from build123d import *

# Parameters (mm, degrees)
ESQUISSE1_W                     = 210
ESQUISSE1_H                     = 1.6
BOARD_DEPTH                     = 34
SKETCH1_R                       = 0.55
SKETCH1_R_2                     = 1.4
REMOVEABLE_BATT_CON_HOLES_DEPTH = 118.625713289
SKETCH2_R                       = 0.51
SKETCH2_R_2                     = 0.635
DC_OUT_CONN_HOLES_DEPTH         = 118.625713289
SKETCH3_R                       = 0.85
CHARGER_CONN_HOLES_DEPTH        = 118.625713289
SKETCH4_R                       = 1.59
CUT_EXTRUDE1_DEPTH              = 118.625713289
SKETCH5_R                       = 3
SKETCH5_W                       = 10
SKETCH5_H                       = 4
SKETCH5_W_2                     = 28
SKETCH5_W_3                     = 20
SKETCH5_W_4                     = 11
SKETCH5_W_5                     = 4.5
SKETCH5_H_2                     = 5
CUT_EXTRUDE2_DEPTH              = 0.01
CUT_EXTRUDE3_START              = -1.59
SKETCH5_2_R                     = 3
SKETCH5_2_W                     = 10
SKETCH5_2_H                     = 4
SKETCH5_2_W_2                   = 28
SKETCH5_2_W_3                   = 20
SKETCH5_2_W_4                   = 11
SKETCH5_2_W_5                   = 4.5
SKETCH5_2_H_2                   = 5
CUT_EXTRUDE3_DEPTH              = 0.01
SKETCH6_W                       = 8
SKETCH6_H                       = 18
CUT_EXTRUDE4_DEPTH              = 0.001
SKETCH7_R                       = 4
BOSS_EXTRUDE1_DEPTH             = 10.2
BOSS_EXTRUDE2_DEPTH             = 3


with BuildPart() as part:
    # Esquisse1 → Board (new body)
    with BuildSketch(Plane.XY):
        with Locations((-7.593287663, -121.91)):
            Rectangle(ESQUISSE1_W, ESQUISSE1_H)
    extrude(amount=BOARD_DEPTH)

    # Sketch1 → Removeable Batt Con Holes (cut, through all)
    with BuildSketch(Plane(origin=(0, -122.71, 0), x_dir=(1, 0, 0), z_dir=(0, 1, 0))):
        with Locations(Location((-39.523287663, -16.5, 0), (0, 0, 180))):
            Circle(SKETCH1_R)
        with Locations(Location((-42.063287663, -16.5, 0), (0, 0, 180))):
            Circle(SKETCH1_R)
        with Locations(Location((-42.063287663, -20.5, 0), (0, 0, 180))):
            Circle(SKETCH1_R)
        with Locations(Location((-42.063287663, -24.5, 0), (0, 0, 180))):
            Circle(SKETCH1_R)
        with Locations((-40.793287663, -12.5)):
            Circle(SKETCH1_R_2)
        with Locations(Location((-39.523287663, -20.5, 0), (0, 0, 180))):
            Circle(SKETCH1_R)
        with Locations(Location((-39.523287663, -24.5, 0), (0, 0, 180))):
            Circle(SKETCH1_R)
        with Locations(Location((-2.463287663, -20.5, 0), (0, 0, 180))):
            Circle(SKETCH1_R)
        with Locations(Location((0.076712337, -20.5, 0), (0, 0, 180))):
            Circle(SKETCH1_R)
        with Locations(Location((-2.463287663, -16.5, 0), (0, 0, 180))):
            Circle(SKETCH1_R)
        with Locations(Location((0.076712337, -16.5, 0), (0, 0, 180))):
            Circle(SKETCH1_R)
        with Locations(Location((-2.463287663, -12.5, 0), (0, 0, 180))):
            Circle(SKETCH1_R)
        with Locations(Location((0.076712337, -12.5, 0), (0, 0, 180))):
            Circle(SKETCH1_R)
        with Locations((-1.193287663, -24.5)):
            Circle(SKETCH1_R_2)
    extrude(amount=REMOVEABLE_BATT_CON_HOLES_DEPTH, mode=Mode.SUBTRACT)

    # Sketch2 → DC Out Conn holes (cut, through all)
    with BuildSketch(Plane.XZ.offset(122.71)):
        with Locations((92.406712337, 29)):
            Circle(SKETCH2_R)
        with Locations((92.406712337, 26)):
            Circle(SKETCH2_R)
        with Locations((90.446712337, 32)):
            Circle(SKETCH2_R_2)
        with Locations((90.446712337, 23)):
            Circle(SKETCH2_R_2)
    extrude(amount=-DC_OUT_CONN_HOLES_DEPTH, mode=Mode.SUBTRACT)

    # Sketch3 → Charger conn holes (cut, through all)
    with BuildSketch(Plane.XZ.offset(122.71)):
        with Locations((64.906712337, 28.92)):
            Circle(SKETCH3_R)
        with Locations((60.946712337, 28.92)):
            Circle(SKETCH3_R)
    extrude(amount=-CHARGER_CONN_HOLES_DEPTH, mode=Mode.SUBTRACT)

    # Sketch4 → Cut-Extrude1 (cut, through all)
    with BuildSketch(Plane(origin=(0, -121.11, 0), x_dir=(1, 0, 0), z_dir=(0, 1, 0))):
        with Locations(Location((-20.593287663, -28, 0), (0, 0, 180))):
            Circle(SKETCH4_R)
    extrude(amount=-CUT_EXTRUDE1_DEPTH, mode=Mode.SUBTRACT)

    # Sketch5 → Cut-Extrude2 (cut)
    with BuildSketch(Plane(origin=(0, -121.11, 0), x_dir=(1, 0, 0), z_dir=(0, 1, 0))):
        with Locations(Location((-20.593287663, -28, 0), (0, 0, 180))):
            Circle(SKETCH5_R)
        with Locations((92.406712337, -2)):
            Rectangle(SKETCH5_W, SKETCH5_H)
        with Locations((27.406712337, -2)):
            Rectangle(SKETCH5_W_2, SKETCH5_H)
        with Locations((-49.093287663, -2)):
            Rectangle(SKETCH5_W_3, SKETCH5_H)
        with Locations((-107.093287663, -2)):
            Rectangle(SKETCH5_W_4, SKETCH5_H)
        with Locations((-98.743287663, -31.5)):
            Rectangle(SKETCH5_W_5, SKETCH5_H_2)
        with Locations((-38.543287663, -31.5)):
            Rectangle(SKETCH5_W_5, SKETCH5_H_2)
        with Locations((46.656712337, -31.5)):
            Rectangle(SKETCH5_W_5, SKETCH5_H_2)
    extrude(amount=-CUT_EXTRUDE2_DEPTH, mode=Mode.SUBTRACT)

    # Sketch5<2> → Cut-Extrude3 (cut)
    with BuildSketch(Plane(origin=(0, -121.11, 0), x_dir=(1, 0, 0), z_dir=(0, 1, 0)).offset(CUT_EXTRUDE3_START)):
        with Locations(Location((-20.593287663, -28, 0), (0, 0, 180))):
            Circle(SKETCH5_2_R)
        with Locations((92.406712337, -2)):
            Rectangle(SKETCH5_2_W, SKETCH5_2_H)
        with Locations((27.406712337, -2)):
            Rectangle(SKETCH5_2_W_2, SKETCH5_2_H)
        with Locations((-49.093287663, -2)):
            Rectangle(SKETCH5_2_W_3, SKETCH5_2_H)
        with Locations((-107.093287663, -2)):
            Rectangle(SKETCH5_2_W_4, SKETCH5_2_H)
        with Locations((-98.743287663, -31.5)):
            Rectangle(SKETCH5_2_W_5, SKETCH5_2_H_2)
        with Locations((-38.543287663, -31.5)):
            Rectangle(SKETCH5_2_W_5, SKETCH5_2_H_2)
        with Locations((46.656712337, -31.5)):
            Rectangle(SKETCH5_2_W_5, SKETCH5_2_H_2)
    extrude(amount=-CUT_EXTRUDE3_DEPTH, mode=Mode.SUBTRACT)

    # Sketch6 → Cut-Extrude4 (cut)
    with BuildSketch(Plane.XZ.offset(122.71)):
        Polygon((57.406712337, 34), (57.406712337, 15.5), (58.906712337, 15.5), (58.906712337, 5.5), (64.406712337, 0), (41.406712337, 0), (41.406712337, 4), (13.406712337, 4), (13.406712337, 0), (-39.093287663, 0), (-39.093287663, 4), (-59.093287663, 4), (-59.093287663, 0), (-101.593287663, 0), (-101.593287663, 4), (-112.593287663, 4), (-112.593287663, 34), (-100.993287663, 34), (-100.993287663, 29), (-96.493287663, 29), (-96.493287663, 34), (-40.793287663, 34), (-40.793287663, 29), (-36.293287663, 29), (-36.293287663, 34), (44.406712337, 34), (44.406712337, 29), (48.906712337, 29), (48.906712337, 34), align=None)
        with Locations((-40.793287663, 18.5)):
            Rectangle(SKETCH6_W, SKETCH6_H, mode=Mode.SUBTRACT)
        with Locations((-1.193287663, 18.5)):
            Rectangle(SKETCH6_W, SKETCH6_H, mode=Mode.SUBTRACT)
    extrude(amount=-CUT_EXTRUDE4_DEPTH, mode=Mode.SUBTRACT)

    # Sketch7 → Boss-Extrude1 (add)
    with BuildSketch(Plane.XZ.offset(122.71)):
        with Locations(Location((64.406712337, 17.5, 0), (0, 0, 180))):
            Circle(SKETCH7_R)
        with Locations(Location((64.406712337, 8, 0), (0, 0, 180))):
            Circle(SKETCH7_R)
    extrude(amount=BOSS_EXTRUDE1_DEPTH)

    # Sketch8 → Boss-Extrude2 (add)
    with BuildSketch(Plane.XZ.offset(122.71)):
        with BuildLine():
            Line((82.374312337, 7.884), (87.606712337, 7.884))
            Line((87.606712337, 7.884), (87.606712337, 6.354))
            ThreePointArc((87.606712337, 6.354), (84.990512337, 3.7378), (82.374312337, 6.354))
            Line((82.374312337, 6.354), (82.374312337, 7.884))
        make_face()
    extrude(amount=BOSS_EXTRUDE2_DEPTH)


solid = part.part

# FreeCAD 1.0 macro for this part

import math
import FreeCAD as App
import Part
import Sketcher

V = App.Vector
Q = App.Units.Quantity

doc = App.newDocument("Part")
body = doc.addObject("PartDesign::Body", "Body")

# Sketch on XY plane
sketch1 = doc.addObject("Sketcher::SketchObject", "Sketch")
body.addObject(sketch1)
sketch1.AttachmentSupport = (doc.XY_Plane, [""])
sketch1.MapMode = "FlatFace"
sketch1.addGeometry([
    Part.LineSegment(V(-112.6, -121.1, 0), V(-112.6, -122.7, 0)),
    Part.LineSegment(V(-112.6, -122.7, 0), V(97.4, -122.7, 0)),
    Part.LineSegment(V(97.4, -122.7, 0), V(97.4, -121.1, 0)),
    Part.LineSegment(V(97.4, -121.1, 0), V(-112.6, -121.1, 0)),
], False)
sketch1.addConstraint([
    Sketcher.Constraint("Coincident", 0, 2, 1, 1),
    Sketcher.Constraint("Coincident", 1, 2, 2, 1),
    Sketcher.Constraint("Coincident", 2, 2, 3, 1),
    Sketcher.Constraint("Coincident", 3, 2, 0, 1),
    Sketcher.Constraint("Vertical", 0),
    Sketcher.Constraint("Horizontal", 1),
    Sketcher.Constraint("Vertical", 2),
    Sketcher.Constraint("Horizontal", 3),
    Sketcher.Constraint("DistanceX", 1, 1, 1, 2, 210.0),
    Sketcher.Constraint("DistanceY", 0, 2, 0, 1, 1.6),
    Sketcher.Constraint("DistanceY", 0, 2, -1, 1, 122.71),
    Sketcher.Constraint("DistanceX", 0, 2, -1, 1, 112.593288),
])
pad1 = doc.addObject("PartDesign::Pad", "Pad")
body.addObject(pad1)
pad1.Profile = sketch1
pad1.Length = 34

# Sketch on XZ plane
sketch2 = doc.addObject("Sketcher::SketchObject", "Sketch001")
body.addObject(sketch2)
sketch2.AttachmentSupport = (doc.XZ_Plane, [""])
sketch2.MapMode = "FlatFace"
sketch2.AttachmentOffset = App.Placement(V(0, 0, 122.71), App.Rotation())
sketch2.addGeometry([
    Part.Circle(V(-39.5, 16.5, 0), V(0, 0, 1), 0.6),  # 0
    Part.Circle(V(-42.1, 16.5, 0), V(0, 0, 1), 0.6),  # 1
    Part.Circle(V(-42.1, 20.5, 0), V(0, 0, 1), 0.6),  # 2
    Part.Circle(V(-42.1, 24.5, 0), V(0, 0, 1), 0.6),  # 3
    Part.Circle(V(-40.8, 12.5, 0), V(0, 0, 1), 1.4),  # 4
    Part.Circle(V(-39.5, 20.5, 0), V(0, 0, 1), 0.6),  # 5
    Part.Circle(V(-39.5, 24.5, 0), V(0, 0, 1), 0.6),  # 6
    Part.Circle(V(-2.5, 20.5, 0), V(0, 0, 1), 0.6),  # 7
    Part.Circle(V(0.1, 20.5, 0), V(0, 0, 1), 0.6),  # 8
    Part.Circle(V(-2.5, 16.5, 0), V(0, 0, 1), 0.6),  # 9
    Part.Circle(V(0.1, 16.5, 0), V(0, 0, 1), 0.6),  # 10
    Part.Circle(V(-2.5, 12.5, 0), V(0, 0, 1), 0.6),  # 11
    Part.Circle(V(0.1, 12.5, 0), V(0, 0, 1), 0.6),  # 12
    Part.Circle(V(-1.2, 24.5, 0), V(0, 0, 1), 1.4),  # 13
], False)
sketch2.addConstraint([
    Sketcher.Constraint("Equal", 0, 1),
    Sketcher.Constraint("Equal", 1, 2),
    Sketcher.Constraint("Equal", 2, 3),
    Sketcher.Constraint("Equal", 3, 5),
    Sketcher.Constraint("Equal", 5, 6),
    Sketcher.Constraint("Equal", 6, 7),
    Sketcher.Constraint("Equal", 7, 8),
    Sketcher.Constraint("Equal", 8, 9),
    Sketcher.Constraint("Equal", 9, 10),
    Sketcher.Constraint("Equal", 10, 11),
    Sketcher.Constraint("Equal", 11, 12),
    Sketcher.Constraint("Equal", 4, 13),
    Sketcher.Constraint("Horizontal", 0, 3, 1, 3),
    Sketcher.Constraint("Horizontal", 2, 3, 5, 3),
    Sketcher.Constraint("Horizontal", 3, 3, 6, 3),
    Sketcher.Constraint("Horizontal", 5, 3, 7, 3),
    Sketcher.Constraint("Horizontal", 7, 3, 8, 3),
    Sketcher.Constraint("Horizontal", 1, 3, 9, 3),
    Sketcher.Constraint("Horizontal", 9, 3, 10, 3),
    Sketcher.Constraint("Horizontal", 4, 3, 11, 3),
    Sketcher.Constraint("Horizontal", 11, 3, 12, 3),
    Sketcher.Constraint("Horizontal", 6, 3, 13, 3),
    Sketcher.Constraint("Vertical", 1, 3, 2, 3),
    Sketcher.Constraint("Vertical", 2, 3, 3, 3),
    Sketcher.Constraint("Vertical", 0, 3, 5, 3),
    Sketcher.Constraint("Vertical", 5, 3, 6, 3),
    Sketcher.Constraint("Vertical", 7, 3, 9, 3),
    Sketcher.Constraint("Vertical", 8, 3, 10, 3),
    Sketcher.Constraint("Vertical", 9, 3, 11, 3),
    Sketcher.Constraint("Vertical", 10, 3, 12, 3),
    Sketcher.Constraint("Diameter", 0, 1.1),
    Sketcher.Constraint("Diameter", 4, 2.8),
    Sketcher.Constraint("DistanceY", 1, 3, 2, 3, 4.0),
    Sketcher.Constraint("DistanceY", 2, 3, 3, 3, 4.0),
    Sketcher.Constraint("DistanceY", 4, 3, 1, 3, 4.0),
    Sketcher.Constraint("DistanceY", -1, 1, 0, 3, 16.5),
    Sketcher.Constraint("DistanceX", 2, 3, 7, 3, 39.6),
    Sketcher.Constraint("DistanceX", 5, 3, 8, 3, 39.6),
    Sketcher.Constraint("DistanceX", 1, 3, 0, 3, 2.54),
    Sketcher.Constraint("DistanceX", 1, 3, 4, 3, 1.27),
    Sketcher.Constraint("DistanceX", 7, 3, 13, 3, 1.27),
    Sketcher.Constraint("DistanceX", 0, 3, -1, 1, 39.523288),
])
pocket1 = doc.addObject("PartDesign::Pocket", "Pocket")
body.addObject(pocket1)
pocket1.Profile = sketch2
pocket1.Type = "ThroughAll"

# Sketch on XZ plane
sketch3 = doc.addObject("Sketcher::SketchObject", "Sketch002")
body.addObject(sketch3)
sketch3.AttachmentSupport = (doc.XZ_Plane, [""])
sketch3.MapMode = "FlatFace"
sketch3.AttachmentOffset = App.Placement(V(0, 0, 122.71), App.Rotation())
sketch3.addGeometry([
    Part.Circle(V(92.4, 29, 0), V(0, 0, 1), 0.5),
    Part.Circle(V(92.4, 26, 0), V(0, 0, 1), 0.5),
    Part.Circle(V(90.4, 32, 0), V(0, 0, 1), 0.6),
    Part.Circle(V(90.4, 23, 0), V(0, 0, 1), 0.6),
], False)
sketch3.addConstraint([
    Sketcher.Constraint("Equal", 0, 1),
    Sketcher.Constraint("Equal", 2, 3),
    Sketcher.Constraint("Vertical", 0, 3, 1, 3),
    Sketcher.Constraint("Vertical", 2, 3, 3, 3),
    Sketcher.Constraint("Diameter", 0, 1.02),
    Sketcher.Constraint("Diameter", 2, 1.27),
    Sketcher.Constraint("DistanceY", -1, 1, 0, 3, 29.0),
    Sketcher.Constraint("DistanceY", -1, 1, 1, 3, 26.0),
    Sketcher.Constraint("DistanceY", -1, 1, 2, 3, 32.0),
    Sketcher.Constraint("DistanceY", -1, 1, 3, 3, 23.0),
    Sketcher.Constraint("DistanceX", 2, 3, 0, 3, 1.96),
    Sketcher.Constraint("DistanceX", -1, 1, 0, 3, 92.406712),
])
pocket2 = doc.addObject("PartDesign::Pocket", "Pocket001")
body.addObject(pocket2)
pocket2.Profile = sketch3
pocket2.Type = "ThroughAll"

# Sketch on XZ plane
sketch4 = doc.addObject("Sketcher::SketchObject", "Sketch003")
body.addObject(sketch4)
sketch4.AttachmentSupport = (doc.XZ_Plane, [""])
sketch4.MapMode = "FlatFace"
sketch4.AttachmentOffset = App.Placement(V(0, 0, 122.71), App.Rotation())
sketch4.addGeometry([
    Part.Circle(V(64.9, 28.9, 0), V(0, 0, 1), 0.8),
    Part.Circle(V(60.9, 28.9, 0), V(0, 0, 1), 0.8),
], False)
sketch4.addConstraint([
    Sketcher.Constraint("Equal", 0, 1),
    Sketcher.Constraint("Horizontal", 0, 3, 1, 3),
    Sketcher.Constraint("Diameter", 0, 1.7),
    Sketcher.Constraint("DistanceY", -1, 1, 0, 3, 28.92),
    Sketcher.Constraint("DistanceX", 1, 3, 0, 3, 3.96),
    Sketcher.Constraint("DistanceX", -1, 1, 0, 3, 64.906712),
])
pocket3 = doc.addObject("PartDesign::Pocket", "Pocket002")
body.addObject(pocket3)
pocket3.Profile = sketch4
pocket3.Type = "ThroughAll"

# Sketch on XZ plane
sketch5 = doc.addObject("Sketcher::SketchObject", "Sketch004")
body.addObject(sketch5)
sketch5.AttachmentSupport = (doc.XZ_Plane, [""])
sketch5.MapMode = "FlatFace"
sketch5.AttachmentOffset = App.Placement(V(0, 0, 121.11), App.Rotation())
sketch5.addGeometry(Part.Circle(V(-20.6, 28, 0), V(0, 0, 1), 1.6), False)
sketch5.addConstraint([
    Sketcher.Constraint("Diameter", 0, 3.18),
    Sketcher.Constraint("DistanceY", -1, 1, 0, 3, 28.0),
    Sketcher.Constraint("DistanceX", 0, 3, -1, 1, 20.593288),
])
pocket4 = doc.addObject("PartDesign::Pocket", "Pocket003")
body.addObject(pocket4)
pocket4.Profile = sketch5
pocket4.Type = "ThroughAll"
pocket4.Reversed = True

# Sketch on XZ plane
sketch6 = doc.addObject("Sketcher::SketchObject", "Sketch005")
body.addObject(sketch6)
sketch6.AttachmentSupport = (doc.XZ_Plane, [""])
sketch6.MapMode = "FlatFace"
sketch6.AttachmentOffset = App.Placement(V(0, 0, 121.11), App.Rotation())
sketch6.addGeometry([
    Part.Circle(V(-20.6, 28, 0), V(0, 0, 1), 3),  # 0
    Part.LineSegment(V(87.4, 0, 0), V(87.4, 4, 0)),  # 1
    Part.LineSegment(V(87.4, 4, 0), V(97.4, 4, 0)),  # 2
    Part.LineSegment(V(97.4, 4, 0), V(97.4, 0, 0)),  # 3
    Part.LineSegment(V(97.4, 0, 0), V(87.4, 0, 0)),  # 4
    Part.LineSegment(V(13.4, 0, 0), V(13.4, 4, 0)),  # 5
    Part.LineSegment(V(13.4, 4, 0), V(41.4, 4, 0)),  # 6
    Part.LineSegment(V(41.4, 4, 0), V(41.4, 0, 0)),  # 7
    Part.LineSegment(V(41.4, 0, 0), V(13.4, 0, 0)),  # 8
    Part.LineSegment(V(-59.1, 0, 0), V(-59.1, 4, 0)),  # 9
    Part.LineSegment(V(-59.1, 4, 0), V(-39.1, 4, 0)),  # 10
    Part.LineSegment(V(-39.1, 4, 0), V(-39.1, 0, 0)),  # 11
    Part.LineSegment(V(-39.1, 0, 0), V(-59.1, 0, 0)),  # 12
    Part.LineSegment(V(-112.6, 0, 0), V(-112.6, 4, 0)),  # 13
    Part.LineSegment(V(-112.6, 4, 0), V(-101.6, 4, 0)),  # 14
    Part.LineSegment(V(-101.6, 4, 0), V(-101.6, 0, 0)),  # 15
    Part.LineSegment(V(-101.6, 0, 0), V(-112.6, 0, 0)),  # 16
    Part.LineSegment(V(-101, 29, 0), V(-101, 34, 0)),  # 17
    Part.LineSegment(V(-101, 34, 0), V(-96.5, 34, 0)),  # 18
    Part.LineSegment(V(-96.5, 34, 0), V(-96.5, 29, 0)),  # 19
    Part.LineSegment(V(-96.5, 29, 0), V(-101, 29, 0)),  # 20
    Part.LineSegment(V(-40.8, 29, 0), V(-40.8, 34, 0)),  # 21
    Part.LineSegment(V(-40.8, 34, 0), V(-36.3, 34, 0)),  # 22
    Part.LineSegment(V(-36.3, 34, 0), V(-36.3, 29, 0)),  # 23
    Part.LineSegment(V(-36.3, 29, 0), V(-40.8, 29, 0)),  # 24
    Part.LineSegment(V(44.4, 29, 0), V(44.4, 34, 0)),  # 25
    Part.LineSegment(V(44.4, 34, 0), V(48.9, 34, 0)),  # 26
    Part.LineSegment(V(48.9, 34, 0), V(48.9, 29, 0)),  # 27
    Part.LineSegment(V(48.9, 29, 0), V(44.4, 29, 0)),  # 28
], False)
sketch6.addConstraint([
    Sketcher.Constraint("Coincident", 1, 2, 2, 1),
    Sketcher.Constraint("Coincident", 2, 2, 3, 1),
    Sketcher.Constraint("Coincident", 3, 2, 4, 1),
    Sketcher.Constraint("Coincident", 4, 2, 1, 1),
    Sketcher.Constraint("Coincident", 5, 2, 6, 1),
    Sketcher.Constraint("Coincident", 6, 2, 7, 1),
    Sketcher.Constraint("Coincident", 7, 2, 8, 1),
    Sketcher.Constraint("Coincident", 8, 2, 5, 1),
    Sketcher.Constraint("Coincident", 9, 2, 10, 1),
    Sketcher.Constraint("Coincident", 10, 2, 11, 1),
    Sketcher.Constraint("Coincident", 11, 2, 12, 1),
    Sketcher.Constraint("Coincident", 12, 2, 9, 1),
    Sketcher.Constraint("Coincident", 13, 2, 14, 1),
    Sketcher.Constraint("Coincident", 14, 2, 15, 1),
    Sketcher.Constraint("Coincident", 15, 2, 16, 1),
    Sketcher.Constraint("Coincident", 16, 2, 13, 1),
    Sketcher.Constraint("Coincident", 17, 2, 18, 1),
    Sketcher.Constraint("Coincident", 18, 2, 19, 1),
    Sketcher.Constraint("Coincident", 19, 2, 20, 1),
    Sketcher.Constraint("Coincident", 20, 2, 17, 1),
    Sketcher.Constraint("Coincident", 21, 2, 22, 1),
    Sketcher.Constraint("Coincident", 22, 2, 23, 1),
    Sketcher.Constraint("Coincident", 23, 2, 24, 1),
    Sketcher.Constraint("Coincident", 24, 2, 21, 1),
    Sketcher.Constraint("Coincident", 25, 2, 26, 1),
    Sketcher.Constraint("Coincident", 26, 2, 27, 1),
    Sketcher.Constraint("Coincident", 27, 2, 28, 1),
    Sketcher.Constraint("Coincident", 28, 2, 25, 1),
    Sketcher.Constraint("Vertical", 1),
    Sketcher.Constraint("Horizontal", 2),
    Sketcher.Constraint("Vertical", 3),
    Sketcher.Constraint("Horizontal", 4),
    Sketcher.Constraint("Vertical", 5),
    Sketcher.Constraint("Horizontal", 6),
    Sketcher.Constraint("Vertical", 7),
    Sketcher.Constraint("Horizontal", 8),
    Sketcher.Constraint("Vertical", 9),
    Sketcher.Constraint("Horizontal", 10),
    Sketcher.Constraint("Vertical", 11),
    Sketcher.Constraint("Horizontal", 12),
    Sketcher.Constraint("Vertical", 13),
    Sketcher.Constraint("Horizontal", 14),
    Sketcher.Constraint("Vertical", 15),
    Sketcher.Constraint("Horizontal", 16),
    Sketcher.Constraint("Vertical", 17),
    Sketcher.Constraint("Horizontal", 18),
    Sketcher.Constraint("Vertical", 19),
    Sketcher.Constraint("Horizontal", 20),
    Sketcher.Constraint("Vertical", 21),
    Sketcher.Constraint("Horizontal", 22),
    Sketcher.Constraint("Vertical", 23),
    Sketcher.Constraint("Horizontal", 24),
    Sketcher.Constraint("Vertical", 25),
    Sketcher.Constraint("Horizontal", 26),
    Sketcher.Constraint("Vertical", 27),
    Sketcher.Constraint("Horizontal", 28),
    Sketcher.Constraint("PointOnObject", 3, 2, -1),
    Sketcher.Constraint("PointOnObject", 7, 2, -1),
    Sketcher.Constraint("PointOnObject", 11, 2, -1),
    Sketcher.Constraint("PointOnObject", 15, 2, -1),
    Sketcher.Constraint("Horizontal", 2, 2, 5, 2),
    Sketcher.Constraint("Horizontal", 6, 2, 9, 2),
    Sketcher.Constraint("Horizontal", 10, 2, 13, 2),
    Sketcher.Constraint("Horizontal", 18, 2, 21, 2),
    Sketcher.Constraint("Horizontal", 20, 2, 23, 2),
    Sketcher.Constraint("Horizontal", 22, 2, 25, 2),
    Sketcher.Constraint("Horizontal", 24, 2, 27, 2),
    Sketcher.Constraint("Equal", 20, 22),
    Sketcher.Constraint("Equal", 24, 26),
    Sketcher.Constraint("Diameter", 0, 6.0),
    Sketcher.Constraint("DistanceX", 2, 1, 2, 2, 10.0),
    Sketcher.Constraint("DistanceX", 6, 1, 6, 2, 28.0),
    Sketcher.Constraint("DistanceX", 10, 1, 10, 2, 20.0),
    Sketcher.Constraint("DistanceX", 14, 1, 14, 2, 11.0),
    Sketcher.Constraint("DistanceY", 1, 1, 1, 2, 4.0),
    Sketcher.Constraint("DistanceY", 17, 1, 17, 2, 5.0),
    Sketcher.Constraint("DistanceX", 18, 1, 18, 2, 4.5),
    Sketcher.Constraint("DistanceY", -1, 1, 0, 3, 28.0),
    Sketcher.Constraint("DistanceY", -1, 1, 17, 2, 34.0),
    Sketcher.Constraint("DistanceX", 0, 3, 1, 2, 108.0),
    Sketcher.Constraint("DistanceX", 0, 3, 5, 2, 34.0),
    Sketcher.Constraint("DistanceX", 13, 2, 0, 3, 92.0),
    Sketcher.Constraint("DistanceX", 6, 2, 25, 2, 3.0),
    Sketcher.Constraint("DistanceX", 9, 2, 0, 3, 38.5),
    Sketcher.Constraint("DistanceX", 14, 2, 17, 2, 0.6),
    Sketcher.Constraint("DistanceX", 21, 2, 0, 3, 20.2),
    Sketcher.Constraint("DistanceX", 0, 3, -1, 1, 20.593288),
])
pocket5 = doc.addObject("PartDesign::Pocket", "Pocket004")
body.addObject(pocket5)
pocket5.Profile = sketch6
pocket5.Length = 0.01
pocket5.Reversed = True

# Sketch on XZ plane
sketch7 = doc.addObject("Sketcher::SketchObject", "Sketch006")
body.addObject(sketch7)
sketch7.AttachmentSupport = (doc.XZ_Plane, [""])
sketch7.MapMode = "FlatFace"
sketch7.AttachmentOffset = App.Placement(V(0, 0, 122.7), App.Rotation())
sketch7.addGeometry([
    Part.Circle(V(-20.6, 28, 0), V(0, 0, 1), 3),  # 0
    Part.LineSegment(V(87.4, 0, 0), V(87.4, 4, 0)),  # 1
    Part.LineSegment(V(87.4, 4, 0), V(97.4, 4, 0)),  # 2
    Part.LineSegment(V(97.4, 4, 0), V(97.4, 0, 0)),  # 3
    Part.LineSegment(V(97.4, 0, 0), V(87.4, 0, 0)),  # 4
    Part.LineSegment(V(13.4, 0, 0), V(13.4, 4, 0)),  # 5
    Part.LineSegment(V(13.4, 4, 0), V(41.4, 4, 0)),  # 6
    Part.LineSegment(V(41.4, 4, 0), V(41.4, 0, 0)),  # 7
    Part.LineSegment(V(41.4, 0, 0), V(13.4, 0, 0)),  # 8
    Part.LineSegment(V(-59.1, 0, 0), V(-59.1, 4, 0)),  # 9
    Part.LineSegment(V(-59.1, 4, 0), V(-39.1, 4, 0)),  # 10
    Part.LineSegment(V(-39.1, 4, 0), V(-39.1, 0, 0)),  # 11
    Part.LineSegment(V(-39.1, 0, 0), V(-59.1, 0, 0)),  # 12
    Part.LineSegment(V(-112.6, 0, 0), V(-112.6, 4, 0)),  # 13
    Part.LineSegment(V(-112.6, 4, 0), V(-101.6, 4, 0)),  # 14
    Part.LineSegment(V(-101.6, 4, 0), V(-101.6, 0, 0)),  # 15
    Part.LineSegment(V(-101.6, 0, 0), V(-112.6, 0, 0)),  # 16
    Part.LineSegment(V(-101, 29, 0), V(-101, 34, 0)),  # 17
    Part.LineSegment(V(-101, 34, 0), V(-96.5, 34, 0)),  # 18
    Part.LineSegment(V(-96.5, 34, 0), V(-96.5, 29, 0)),  # 19
    Part.LineSegment(V(-96.5, 29, 0), V(-101, 29, 0)),  # 20
    Part.LineSegment(V(-40.8, 29, 0), V(-40.8, 34, 0)),  # 21
    Part.LineSegment(V(-40.8, 34, 0), V(-36.3, 34, 0)),  # 22
    Part.LineSegment(V(-36.3, 34, 0), V(-36.3, 29, 0)),  # 23
    Part.LineSegment(V(-36.3, 29, 0), V(-40.8, 29, 0)),  # 24
    Part.LineSegment(V(44.4, 29, 0), V(44.4, 34, 0)),  # 25
    Part.LineSegment(V(44.4, 34, 0), V(48.9, 34, 0)),  # 26
    Part.LineSegment(V(48.9, 34, 0), V(48.9, 29, 0)),  # 27
    Part.LineSegment(V(48.9, 29, 0), V(44.4, 29, 0)),  # 28
], False)
sketch7.addConstraint([
    Sketcher.Constraint("Coincident", 1, 2, 2, 1),
    Sketcher.Constraint("Coincident", 2, 2, 3, 1),
    Sketcher.Constraint("Coincident", 3, 2, 4, 1),
    Sketcher.Constraint("Coincident", 4, 2, 1, 1),
    Sketcher.Constraint("Coincident", 5, 2, 6, 1),
    Sketcher.Constraint("Coincident", 6, 2, 7, 1),
    Sketcher.Constraint("Coincident", 7, 2, 8, 1),
    Sketcher.Constraint("Coincident", 8, 2, 5, 1),
    Sketcher.Constraint("Coincident", 9, 2, 10, 1),
    Sketcher.Constraint("Coincident", 10, 2, 11, 1),
    Sketcher.Constraint("Coincident", 11, 2, 12, 1),
    Sketcher.Constraint("Coincident", 12, 2, 9, 1),
    Sketcher.Constraint("Coincident", 13, 2, 14, 1),
    Sketcher.Constraint("Coincident", 14, 2, 15, 1),
    Sketcher.Constraint("Coincident", 15, 2, 16, 1),
    Sketcher.Constraint("Coincident", 16, 2, 13, 1),
    Sketcher.Constraint("Coincident", 17, 2, 18, 1),
    Sketcher.Constraint("Coincident", 18, 2, 19, 1),
    Sketcher.Constraint("Coincident", 19, 2, 20, 1),
    Sketcher.Constraint("Coincident", 20, 2, 17, 1),
    Sketcher.Constraint("Coincident", 21, 2, 22, 1),
    Sketcher.Constraint("Coincident", 22, 2, 23, 1),
    Sketcher.Constraint("Coincident", 23, 2, 24, 1),
    Sketcher.Constraint("Coincident", 24, 2, 21, 1),
    Sketcher.Constraint("Coincident", 25, 2, 26, 1),
    Sketcher.Constraint("Coincident", 26, 2, 27, 1),
    Sketcher.Constraint("Coincident", 27, 2, 28, 1),
    Sketcher.Constraint("Coincident", 28, 2, 25, 1),
    Sketcher.Constraint("Vertical", 1),
    Sketcher.Constraint("Horizontal", 2),
    Sketcher.Constraint("Vertical", 3),
    Sketcher.Constraint("Horizontal", 4),
    Sketcher.Constraint("Vertical", 5),
    Sketcher.Constraint("Horizontal", 6),
    Sketcher.Constraint("Vertical", 7),
    Sketcher.Constraint("Horizontal", 8),
    Sketcher.Constraint("Vertical", 9),
    Sketcher.Constraint("Horizontal", 10),
    Sketcher.Constraint("Vertical", 11),
    Sketcher.Constraint("Horizontal", 12),
    Sketcher.Constraint("Vertical", 13),
    Sketcher.Constraint("Horizontal", 14),
    Sketcher.Constraint("Vertical", 15),
    Sketcher.Constraint("Horizontal", 16),
    Sketcher.Constraint("Vertical", 17),
    Sketcher.Constraint("Horizontal", 18),
    Sketcher.Constraint("Vertical", 19),
    Sketcher.Constraint("Horizontal", 20),
    Sketcher.Constraint("Vertical", 21),
    Sketcher.Constraint("Horizontal", 22),
    Sketcher.Constraint("Vertical", 23),
    Sketcher.Constraint("Horizontal", 24),
    Sketcher.Constraint("Vertical", 25),
    Sketcher.Constraint("Horizontal", 26),
    Sketcher.Constraint("Vertical", 27),
    Sketcher.Constraint("Horizontal", 28),
    Sketcher.Constraint("PointOnObject", 3, 2, -1),
    Sketcher.Constraint("PointOnObject", 7, 2, -1),
    Sketcher.Constraint("PointOnObject", 11, 2, -1),
    Sketcher.Constraint("PointOnObject", 15, 2, -1),
    Sketcher.Constraint("Horizontal", 2, 2, 5, 2),
    Sketcher.Constraint("Horizontal", 6, 2, 9, 2),
    Sketcher.Constraint("Horizontal", 10, 2, 13, 2),
    Sketcher.Constraint("Horizontal", 18, 2, 21, 2),
    Sketcher.Constraint("Horizontal", 20, 2, 23, 2),
    Sketcher.Constraint("Horizontal", 22, 2, 25, 2),
    Sketcher.Constraint("Horizontal", 24, 2, 27, 2),
    Sketcher.Constraint("Equal", 20, 22),
    Sketcher.Constraint("Equal", 24, 26),
    Sketcher.Constraint("Diameter", 0, 6.0),
    Sketcher.Constraint("DistanceX", 2, 1, 2, 2, 10.0),
    Sketcher.Constraint("DistanceX", 6, 1, 6, 2, 28.0),
    Sketcher.Constraint("DistanceX", 10, 1, 10, 2, 20.0),
    Sketcher.Constraint("DistanceX", 14, 1, 14, 2, 11.0),
    Sketcher.Constraint("DistanceY", 1, 1, 1, 2, 4.0),
    Sketcher.Constraint("DistanceY", 17, 1, 17, 2, 5.0),
    Sketcher.Constraint("DistanceX", 18, 1, 18, 2, 4.5),
    Sketcher.Constraint("DistanceY", -1, 1, 0, 3, 28.0),
    Sketcher.Constraint("DistanceY", -1, 1, 17, 2, 34.0),
    Sketcher.Constraint("DistanceX", 0, 3, 1, 2, 108.0),
    Sketcher.Constraint("DistanceX", 0, 3, 5, 2, 34.0),
    Sketcher.Constraint("DistanceX", 13, 2, 0, 3, 92.0),
    Sketcher.Constraint("DistanceX", 6, 2, 25, 2, 3.0),
    Sketcher.Constraint("DistanceX", 9, 2, 0, 3, 38.5),
    Sketcher.Constraint("DistanceX", 14, 2, 17, 2, 0.6),
    Sketcher.Constraint("DistanceX", 21, 2, 0, 3, 20.2),
    Sketcher.Constraint("DistanceX", 0, 3, -1, 1, 20.593288),
])
pocket6 = doc.addObject("PartDesign::Pocket", "Pocket005")
body.addObject(pocket6)
pocket6.Profile = sketch7
pocket6.Length = 0.01
pocket6.Reversed = True

# Sketch on XZ plane
sketch8 = doc.addObject("Sketcher::SketchObject", "Sketch007")
body.addObject(sketch8)
sketch8.AttachmentSupport = (doc.XZ_Plane, [""])
sketch8.MapMode = "FlatFace"
sketch8.AttachmentOffset = App.Placement(V(0, 0, 122.71), App.Rotation())
sketch8.addGeometry([
    Part.LineSegment(V(57.4, 15.5, 0), V(57.4, 34, 0)),  # 0
    Part.LineSegment(V(57.4, 34, 0), V(48.9, 34, 0)),  # 1
    Part.LineSegment(V(48.9, 34, 0), V(48.9, 29, 0)),  # 2
    Part.LineSegment(V(48.9, 29, 0), V(44.4, 29, 0)),  # 3
    Part.LineSegment(V(44.4, 29, 0), V(44.4, 34, 0)),  # 4
    Part.LineSegment(V(44.4, 34, 0), V(-36.3, 34, 0)),  # 5
    Part.LineSegment(V(-36.3, 34, 0), V(-36.3, 29, 0)),  # 6
    Part.LineSegment(V(-36.3, 29, 0), V(-40.8, 29, 0)),  # 7
    Part.LineSegment(V(-40.8, 29, 0), V(-40.8, 34, 0)),  # 8
    Part.LineSegment(V(-40.8, 34, 0), V(-96.5, 34, 0)),  # 9
    Part.LineSegment(V(-96.5, 34, 0), V(-96.5, 29, 0)),  # 10
    Part.LineSegment(V(-96.5, 29, 0), V(-101, 29, 0)),  # 11
    Part.LineSegment(V(-101, 29, 0), V(-101, 34, 0)),  # 12
    Part.LineSegment(V(-101, 34, 0), V(-112.6, 34, 0)),  # 13
    Part.LineSegment(V(-112.6, 34, 0), V(-112.6, 4, 0)),  # 14
    Part.LineSegment(V(-112.6, 4, 0), V(-101.6, 4, 0)),  # 15
    Part.LineSegment(V(-101.6, 4, 0), V(-101.6, 0, 0)),  # 16
    Part.LineSegment(V(-101.6, 0, 0), V(-59.1, 0, 0)),  # 17
    Part.LineSegment(V(-59.1, 0, 0), V(-59.1, 4, 0)),  # 18
    Part.LineSegment(V(-59.1, 4, 0), V(-39.1, 4, 0)),  # 19
    Part.LineSegment(V(-39.1, 4, 0), V(-39.1, 0, 0)),  # 20
    Part.LineSegment(V(-39.1, 0, 0), V(13.4, 0, 0)),  # 21
    Part.LineSegment(V(13.4, 0, 0), V(13.4, 4, 0)),  # 22
    Part.LineSegment(V(13.4, 4, 0), V(41.4, 4, 0)),  # 23
    Part.LineSegment(V(41.4, 4, 0), V(41.4, 0, 0)),  # 24
    Part.LineSegment(V(41.4, 0, 0), V(64.4, 0, 0)),  # 25
    Part.LineSegment(V(64.4, 0, 0), V(58.9, 5.5, 0)),  # 26
    Part.LineSegment(V(58.9, 5.5, 0), V(58.9, 15.5, 0)),  # 27
    Part.LineSegment(V(58.9, 15.5, 0), V(57.4, 15.5, 0)),  # 28
    Part.LineSegment(V(-5.2, 9.5, 0), V(-5.2, 27.5, 0)),  # 29
    Part.LineSegment(V(-5.2, 27.5, 0), V(2.8, 27.5, 0)),  # 30
    Part.LineSegment(V(2.8, 27.5, 0), V(2.8, 9.5, 0)),  # 31
    Part.LineSegment(V(2.8, 9.5, 0), V(-5.2, 9.5, 0)),  # 32
    Part.LineSegment(V(-44.8, 9.5, 0), V(-44.8, 27.5, 0)),  # 33
    Part.LineSegment(V(-44.8, 27.5, 0), V(-36.8, 27.5, 0)),  # 34
    Part.LineSegment(V(-36.8, 27.5, 0), V(-36.8, 9.5, 0)),  # 35
    Part.LineSegment(V(-36.8, 9.5, 0), V(-44.8, 9.5, 0)),  # 36
], False)
sketch8.addConstraint([
    Sketcher.Constraint("Coincident", 0, 2, 1, 1),
    Sketcher.Constraint("Coincident", 1, 2, 2, 1),
    Sketcher.Constraint("Coincident", 2, 2, 3, 1),
    Sketcher.Constraint("Coincident", 3, 2, 4, 1),
    Sketcher.Constraint("Coincident", 4, 2, 5, 1),
    Sketcher.Constraint("Coincident", 5, 2, 6, 1),
    Sketcher.Constraint("Coincident", 6, 2, 7, 1),
    Sketcher.Constraint("Coincident", 7, 2, 8, 1),
    Sketcher.Constraint("Coincident", 8, 2, 9, 1),
    Sketcher.Constraint("Coincident", 9, 2, 10, 1),
    Sketcher.Constraint("Coincident", 10, 2, 11, 1),
    Sketcher.Constraint("Coincident", 11, 2, 12, 1),
    Sketcher.Constraint("Coincident", 12, 2, 13, 1),
    Sketcher.Constraint("Coincident", 13, 2, 14, 1),
    Sketcher.Constraint("Coincident", 14, 2, 15, 1),
    Sketcher.Constraint("Coincident", 15, 2, 16, 1),
    Sketcher.Constraint("Coincident", 16, 2, 17, 1),
    Sketcher.Constraint("Coincident", 17, 2, 18, 1),
    Sketcher.Constraint("Coincident", 18, 2, 19, 1),
    Sketcher.Constraint("Coincident", 19, 2, 20, 1),
    Sketcher.Constraint("Coincident", 20, 2, 21, 1),
    Sketcher.Constraint("Coincident", 21, 2, 22, 1),
    Sketcher.Constraint("Coincident", 22, 2, 23, 1),
    Sketcher.Constraint("Coincident", 23, 2, 24, 1),
    Sketcher.Constraint("Coincident", 24, 2, 25, 1),
    Sketcher.Constraint("Coincident", 25, 2, 26, 1),
    Sketcher.Constraint("Coincident", 26, 2, 27, 1),
    Sketcher.Constraint("Coincident", 27, 2, 28, 1),
    Sketcher.Constraint("Coincident", 28, 2, 0, 1),
    Sketcher.Constraint("Coincident", 29, 2, 30, 1),
    Sketcher.Constraint("Coincident", 30, 2, 31, 1),
    Sketcher.Constraint("Coincident", 31, 2, 32, 1),
    Sketcher.Constraint("Coincident", 32, 2, 29, 1),
    Sketcher.Constraint("Coincident", 33, 2, 34, 1),
    Sketcher.Constraint("Coincident", 34, 2, 35, 1),
    Sketcher.Constraint("Coincident", 35, 2, 36, 1),
    Sketcher.Constraint("Coincident", 36, 2, 33, 1),
    Sketcher.Constraint("Vertical", 0),
    Sketcher.Constraint("Horizontal", 1),
    Sketcher.Constraint("Vertical", 2),
    Sketcher.Constraint("Horizontal", 3),
    Sketcher.Constraint("Vertical", 4),
    Sketcher.Constraint("Horizontal", 5),
    Sketcher.Constraint("Vertical", 6),
    Sketcher.Constraint("Horizontal", 7),
    Sketcher.Constraint("Vertical", 8),
    Sketcher.Constraint("Horizontal", 9),
    Sketcher.Constraint("Vertical", 10),
    Sketcher.Constraint("Horizontal", 11),
    Sketcher.Constraint("Vertical", 12),
    Sketcher.Constraint("Horizontal", 13),
    Sketcher.Constraint("Vertical", 14),
    Sketcher.Constraint("Horizontal", 15),
    Sketcher.Constraint("Vertical", 16),
    Sketcher.Constraint("Horizontal", 17),
    Sketcher.Constraint("Vertical", 18),
    Sketcher.Constraint("Horizontal", 19),
    Sketcher.Constraint("Vertical", 20),
    Sketcher.Constraint("Horizontal", 21),
    Sketcher.Constraint("Vertical", 22),
    Sketcher.Constraint("Horizontal", 23),
    Sketcher.Constraint("Vertical", 24),
    Sketcher.Constraint("Horizontal", 25),
    Sketcher.Constraint("Vertical", 27),
    Sketcher.Constraint("Horizontal", 28),
    Sketcher.Constraint("Vertical", 29),
    Sketcher.Constraint("Horizontal", 30),
    Sketcher.Constraint("Vertical", 31),
    Sketcher.Constraint("Horizontal", 32),
    Sketcher.Constraint("Vertical", 33),
    Sketcher.Constraint("Horizontal", 34),
    Sketcher.Constraint("Vertical", 35),
    Sketcher.Constraint("Horizontal", 36),
    Sketcher.Constraint("PointOnObject", 16, 2, -1),
    Sketcher.Constraint("PointOnObject", 20, 2, -1),
    Sketcher.Constraint("PointOnObject", 24, 2, -1),
    Sketcher.Constraint("Horizontal", 1, 2, 4, 2),
    Sketcher.Constraint("Horizontal", 3, 2, 6, 2),
    Sketcher.Constraint("Horizontal", 5, 2, 8, 2),
    Sketcher.Constraint("Horizontal", 7, 2, 10, 2),
    Sketcher.Constraint("Horizontal", 9, 2, 12, 2),
    Sketcher.Constraint("Horizontal", 15, 2, 18, 2),
    Sketcher.Constraint("Horizontal", 19, 2, 22, 2),
    Sketcher.Constraint("Horizontal", 30, 2, 33, 2),
    Sketcher.Constraint("Horizontal", 32, 2, 35, 2),
    Sketcher.Constraint("Equal", 3, 7),
    Sketcher.Constraint("Equal", 7, 11),
    Sketcher.Constraint("Equal", 32, 34),
    Sketcher.Constraint("DistanceX", 15, 1, 15, 2, 11.0),
    Sketcher.Constraint("DistanceX", 19, 1, 19, 2, 20.0),
    Sketcher.Constraint("DistanceX", 23, 1, 23, 2, 28.0),
    Sketcher.Constraint("DistanceX", 25, 1, 25, 2, 23.0),
    Sketcher.Constraint("DistanceX", 30, 1, 30, 2, 8.0),
    Sketcher.Constraint("DistanceY", 2, 2, 2, 1, 5.0),
    Sketcher.Constraint("DistanceY", 14, 2, 14, 1, 30.0),
    Sketcher.Constraint("DistanceY", 16, 2, 16, 1, 4.0),
    Sketcher.Constraint("DistanceY", 27, 1, 27, 2, 10.0),
    Sketcher.Constraint("DistanceY", 29, 1, 29, 2, 18.0),
    Sketcher.Constraint("Angle", 26, Q("135 deg")),
    Sketcher.Constraint("DistanceX", 1, 2, 1, 1, 8.5),
    Sketcher.Constraint("DistanceX", 3, 2, 3, 1, 4.5),
    Sketcher.Constraint("DistanceX", 5, 2, 5, 1, 80.7),
    Sketcher.Constraint("DistanceX", 9, 2, 9, 1, 55.7),
    Sketcher.Constraint("DistanceX", 13, 2, 13, 1, 11.6),
    Sketcher.Constraint("DistanceX", 17, 1, 17, 2, 42.5),
    Sketcher.Constraint("DistanceX", 21, 1, 21, 2, 52.5),
    Sketcher.Constraint("DistanceX", 28, 2, 28, 1, 1.5),
    Sketcher.Constraint("DistanceX", 33, 2, 7, 2, 4.0),
    Sketcher.Constraint("DistanceY", -1, 1, 29, 2, 27.5),
    Sketcher.Constraint("DistanceX", 29, 2, 22, 2, 18.6),
    Sketcher.Constraint("DistanceX", -1, 1, 0, 2, 57.406712),
])
pocket7 = doc.addObject("PartDesign::Pocket", "Pocket006")
body.addObject(pocket7)
pocket7.Profile = sketch8
pocket7.Length = 0.001

# Sketch on XZ plane
sketch9 = doc.addObject("Sketcher::SketchObject", "Sketch008")
body.addObject(sketch9)
sketch9.AttachmentSupport = (doc.XZ_Plane, [""])
sketch9.MapMode = "FlatFace"
sketch9.AttachmentOffset = App.Placement(V(0, 0, 122.71), App.Rotation())
sketch9.addGeometry([
    Part.Circle(V(64.4, 17.5, 0), V(0, 0, 1), 4),
    Part.Circle(V(64.4, 8, 0), V(0, 0, 1), 4),
], False)
sketch9.addConstraint([
    Sketcher.Constraint("Equal", 0, 1),
    Sketcher.Constraint("Vertical", 0, 3, 1, 3),
    Sketcher.Constraint("Diameter", 0, 8.0),
    Sketcher.Constraint("DistanceY", -1, 1, 1, 3, 8.0),
    Sketcher.Constraint("DistanceY", -1, 1, 0, 3, 17.5),
    Sketcher.Constraint("DistanceX", -1, 1, 0, 3, 64.406712),
])
pad2 = doc.addObject("PartDesign::Pad", "Pad001")
body.addObject(pad2)
pad2.Profile = sketch9
pad2.Length = 10.2

# Sketch on XZ plane
sketch10 = doc.addObject("Sketcher::SketchObject", "Sketch009")
body.addObject(sketch10)
sketch10.AttachmentSupport = (doc.XZ_Plane, [""])
sketch10.MapMode = "FlatFace"
sketch10.AttachmentOffset = App.Placement(V(0, 0, 122.71), App.Rotation())
sketch10.addGeometry([
    Part.LineSegment(V(87.6, 7.9, 0), V(82.4, 7.9, 0)),
    Part.LineSegment(V(82.4, 7.9, 0), V(82.4, 6.4, 0)),
    Part.ArcOfCircle(Part.Circle(V(85, 6.4, 0), V(0, 0, 1), 2.6), math.radians(180), math.radians(360)),
    Part.LineSegment(V(87.6, 6.4, 0), V(87.6, 7.9, 0)),
], False)
sketch10.addConstraint([
    Sketcher.Constraint("Coincident", 0, 2, 1, 1),
    Sketcher.Constraint("Tangent", 1, 2, 2, 1),
    Sketcher.Constraint("Tangent", 2, 2, 3, 1),
    Sketcher.Constraint("Coincident", 3, 2, 0, 1),
    Sketcher.Constraint("Horizontal", 0),
    Sketcher.Constraint("Vertical", 1),
    Sketcher.Constraint("Vertical", 3),
    Sketcher.Constraint("DistanceY", 1, 2, 1, 1, 1.53),
    Sketcher.Constraint("Radius", 2, 2.6162),
    Sketcher.Constraint("DistanceY", -1, 1, 2, 3, 6.354),
    Sketcher.Constraint("DistanceX", -1, 1, 2, 3, 84.990512),
])
pad3 = doc.addObject("PartDesign::Pad", "Pad002")
body.addObject(pad3)
pad3.Profile = sketch10
pad3.Length = 3

doc.recompute()
